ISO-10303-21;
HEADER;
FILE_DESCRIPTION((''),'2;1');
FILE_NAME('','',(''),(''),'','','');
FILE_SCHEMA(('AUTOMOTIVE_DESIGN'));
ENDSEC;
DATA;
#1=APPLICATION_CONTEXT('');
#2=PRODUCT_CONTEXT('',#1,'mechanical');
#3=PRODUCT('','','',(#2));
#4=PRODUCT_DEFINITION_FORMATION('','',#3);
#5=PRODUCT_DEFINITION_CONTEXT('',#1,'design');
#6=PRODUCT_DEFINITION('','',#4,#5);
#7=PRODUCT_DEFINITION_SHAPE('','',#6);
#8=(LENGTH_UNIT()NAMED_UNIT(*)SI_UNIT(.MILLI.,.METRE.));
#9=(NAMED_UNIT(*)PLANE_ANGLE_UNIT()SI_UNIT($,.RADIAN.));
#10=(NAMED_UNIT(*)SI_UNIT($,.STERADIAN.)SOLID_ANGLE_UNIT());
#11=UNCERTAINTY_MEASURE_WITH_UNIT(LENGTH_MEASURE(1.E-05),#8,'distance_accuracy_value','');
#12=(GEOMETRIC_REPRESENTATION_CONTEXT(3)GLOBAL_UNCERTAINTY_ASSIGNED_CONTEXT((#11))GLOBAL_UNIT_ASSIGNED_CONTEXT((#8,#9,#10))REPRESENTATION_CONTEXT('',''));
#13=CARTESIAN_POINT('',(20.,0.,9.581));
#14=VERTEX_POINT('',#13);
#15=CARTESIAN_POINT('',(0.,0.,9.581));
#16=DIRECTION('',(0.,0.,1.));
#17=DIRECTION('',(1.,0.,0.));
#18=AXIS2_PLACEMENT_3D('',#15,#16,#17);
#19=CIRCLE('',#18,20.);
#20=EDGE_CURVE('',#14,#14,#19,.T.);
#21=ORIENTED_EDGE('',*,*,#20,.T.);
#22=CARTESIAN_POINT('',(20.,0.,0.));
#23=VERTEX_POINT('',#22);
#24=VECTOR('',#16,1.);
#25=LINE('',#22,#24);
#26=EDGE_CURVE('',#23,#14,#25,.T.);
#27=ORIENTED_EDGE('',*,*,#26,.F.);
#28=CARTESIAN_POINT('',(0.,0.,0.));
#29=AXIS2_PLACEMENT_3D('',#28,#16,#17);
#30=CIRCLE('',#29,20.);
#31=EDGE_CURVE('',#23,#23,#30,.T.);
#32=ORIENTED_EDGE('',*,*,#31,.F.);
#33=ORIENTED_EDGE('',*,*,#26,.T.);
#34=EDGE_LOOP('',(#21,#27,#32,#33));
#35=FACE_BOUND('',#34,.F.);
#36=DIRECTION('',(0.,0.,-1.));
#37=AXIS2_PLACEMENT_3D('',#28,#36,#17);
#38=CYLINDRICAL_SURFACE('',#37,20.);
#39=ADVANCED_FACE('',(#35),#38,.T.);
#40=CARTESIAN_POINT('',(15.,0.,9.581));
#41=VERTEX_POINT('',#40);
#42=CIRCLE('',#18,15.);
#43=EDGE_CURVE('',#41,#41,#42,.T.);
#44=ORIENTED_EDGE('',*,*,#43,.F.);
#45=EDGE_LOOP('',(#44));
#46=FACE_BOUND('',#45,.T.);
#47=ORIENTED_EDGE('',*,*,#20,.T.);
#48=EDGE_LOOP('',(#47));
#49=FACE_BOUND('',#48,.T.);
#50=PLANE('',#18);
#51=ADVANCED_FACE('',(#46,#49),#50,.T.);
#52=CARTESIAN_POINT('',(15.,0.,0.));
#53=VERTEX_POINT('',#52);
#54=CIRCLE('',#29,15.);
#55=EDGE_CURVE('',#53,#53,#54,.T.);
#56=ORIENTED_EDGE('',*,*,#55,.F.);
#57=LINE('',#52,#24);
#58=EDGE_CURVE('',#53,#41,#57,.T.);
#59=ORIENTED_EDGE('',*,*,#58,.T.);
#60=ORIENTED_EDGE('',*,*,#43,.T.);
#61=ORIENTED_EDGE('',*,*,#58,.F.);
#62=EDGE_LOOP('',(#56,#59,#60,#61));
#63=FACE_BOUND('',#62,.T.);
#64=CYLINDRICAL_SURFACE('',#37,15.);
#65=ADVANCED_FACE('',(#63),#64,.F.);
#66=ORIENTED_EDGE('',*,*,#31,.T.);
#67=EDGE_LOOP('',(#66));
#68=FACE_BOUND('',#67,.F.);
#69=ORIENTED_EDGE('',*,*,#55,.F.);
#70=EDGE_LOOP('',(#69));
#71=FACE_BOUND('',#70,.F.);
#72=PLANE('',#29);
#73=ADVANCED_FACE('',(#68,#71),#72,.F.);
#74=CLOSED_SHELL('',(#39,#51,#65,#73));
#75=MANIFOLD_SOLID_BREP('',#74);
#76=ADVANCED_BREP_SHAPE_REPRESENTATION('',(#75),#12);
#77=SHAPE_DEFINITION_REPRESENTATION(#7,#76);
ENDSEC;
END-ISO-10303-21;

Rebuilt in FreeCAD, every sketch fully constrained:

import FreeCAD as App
import Part
import Sketcher

V = App.Vector
Q = App.Units.Quantity

doc = App.newDocument("Part")
body = doc.addObject("PartDesign::Body", "Body")

sketch1 = body.newObject("Sketcher::SketchObject", "Sketch")
sketch1.AttachmentSupport = (doc.getObject("XY_Plane"), [""])
sketch1.MapMode = "FlatFace"
sketch1.addGeometry([
    Part.Circle(V(0, 0, 0), V(0, 0, 1), 20),
    Part.Circle(V(0, 0, 0), V(0, 0, 1), 15),
], False)
sketch1.addConstraint([
    Sketcher.Constraint("Coincident", 0, 3, -1, 1),
    Sketcher.Constraint("Coincident", 1, 3, -1, 1),
    Sketcher.Constraint("Diameter", 0, Q("40 mm")),
    Sketcher.Constraint("Diameter", 1, Q("30 mm")),
])
pad1 = body.newObject("PartDesign::Pad", "Pad")
pad1.Profile = sketch1
pad1.Length = 9.581

doc.recompute()
